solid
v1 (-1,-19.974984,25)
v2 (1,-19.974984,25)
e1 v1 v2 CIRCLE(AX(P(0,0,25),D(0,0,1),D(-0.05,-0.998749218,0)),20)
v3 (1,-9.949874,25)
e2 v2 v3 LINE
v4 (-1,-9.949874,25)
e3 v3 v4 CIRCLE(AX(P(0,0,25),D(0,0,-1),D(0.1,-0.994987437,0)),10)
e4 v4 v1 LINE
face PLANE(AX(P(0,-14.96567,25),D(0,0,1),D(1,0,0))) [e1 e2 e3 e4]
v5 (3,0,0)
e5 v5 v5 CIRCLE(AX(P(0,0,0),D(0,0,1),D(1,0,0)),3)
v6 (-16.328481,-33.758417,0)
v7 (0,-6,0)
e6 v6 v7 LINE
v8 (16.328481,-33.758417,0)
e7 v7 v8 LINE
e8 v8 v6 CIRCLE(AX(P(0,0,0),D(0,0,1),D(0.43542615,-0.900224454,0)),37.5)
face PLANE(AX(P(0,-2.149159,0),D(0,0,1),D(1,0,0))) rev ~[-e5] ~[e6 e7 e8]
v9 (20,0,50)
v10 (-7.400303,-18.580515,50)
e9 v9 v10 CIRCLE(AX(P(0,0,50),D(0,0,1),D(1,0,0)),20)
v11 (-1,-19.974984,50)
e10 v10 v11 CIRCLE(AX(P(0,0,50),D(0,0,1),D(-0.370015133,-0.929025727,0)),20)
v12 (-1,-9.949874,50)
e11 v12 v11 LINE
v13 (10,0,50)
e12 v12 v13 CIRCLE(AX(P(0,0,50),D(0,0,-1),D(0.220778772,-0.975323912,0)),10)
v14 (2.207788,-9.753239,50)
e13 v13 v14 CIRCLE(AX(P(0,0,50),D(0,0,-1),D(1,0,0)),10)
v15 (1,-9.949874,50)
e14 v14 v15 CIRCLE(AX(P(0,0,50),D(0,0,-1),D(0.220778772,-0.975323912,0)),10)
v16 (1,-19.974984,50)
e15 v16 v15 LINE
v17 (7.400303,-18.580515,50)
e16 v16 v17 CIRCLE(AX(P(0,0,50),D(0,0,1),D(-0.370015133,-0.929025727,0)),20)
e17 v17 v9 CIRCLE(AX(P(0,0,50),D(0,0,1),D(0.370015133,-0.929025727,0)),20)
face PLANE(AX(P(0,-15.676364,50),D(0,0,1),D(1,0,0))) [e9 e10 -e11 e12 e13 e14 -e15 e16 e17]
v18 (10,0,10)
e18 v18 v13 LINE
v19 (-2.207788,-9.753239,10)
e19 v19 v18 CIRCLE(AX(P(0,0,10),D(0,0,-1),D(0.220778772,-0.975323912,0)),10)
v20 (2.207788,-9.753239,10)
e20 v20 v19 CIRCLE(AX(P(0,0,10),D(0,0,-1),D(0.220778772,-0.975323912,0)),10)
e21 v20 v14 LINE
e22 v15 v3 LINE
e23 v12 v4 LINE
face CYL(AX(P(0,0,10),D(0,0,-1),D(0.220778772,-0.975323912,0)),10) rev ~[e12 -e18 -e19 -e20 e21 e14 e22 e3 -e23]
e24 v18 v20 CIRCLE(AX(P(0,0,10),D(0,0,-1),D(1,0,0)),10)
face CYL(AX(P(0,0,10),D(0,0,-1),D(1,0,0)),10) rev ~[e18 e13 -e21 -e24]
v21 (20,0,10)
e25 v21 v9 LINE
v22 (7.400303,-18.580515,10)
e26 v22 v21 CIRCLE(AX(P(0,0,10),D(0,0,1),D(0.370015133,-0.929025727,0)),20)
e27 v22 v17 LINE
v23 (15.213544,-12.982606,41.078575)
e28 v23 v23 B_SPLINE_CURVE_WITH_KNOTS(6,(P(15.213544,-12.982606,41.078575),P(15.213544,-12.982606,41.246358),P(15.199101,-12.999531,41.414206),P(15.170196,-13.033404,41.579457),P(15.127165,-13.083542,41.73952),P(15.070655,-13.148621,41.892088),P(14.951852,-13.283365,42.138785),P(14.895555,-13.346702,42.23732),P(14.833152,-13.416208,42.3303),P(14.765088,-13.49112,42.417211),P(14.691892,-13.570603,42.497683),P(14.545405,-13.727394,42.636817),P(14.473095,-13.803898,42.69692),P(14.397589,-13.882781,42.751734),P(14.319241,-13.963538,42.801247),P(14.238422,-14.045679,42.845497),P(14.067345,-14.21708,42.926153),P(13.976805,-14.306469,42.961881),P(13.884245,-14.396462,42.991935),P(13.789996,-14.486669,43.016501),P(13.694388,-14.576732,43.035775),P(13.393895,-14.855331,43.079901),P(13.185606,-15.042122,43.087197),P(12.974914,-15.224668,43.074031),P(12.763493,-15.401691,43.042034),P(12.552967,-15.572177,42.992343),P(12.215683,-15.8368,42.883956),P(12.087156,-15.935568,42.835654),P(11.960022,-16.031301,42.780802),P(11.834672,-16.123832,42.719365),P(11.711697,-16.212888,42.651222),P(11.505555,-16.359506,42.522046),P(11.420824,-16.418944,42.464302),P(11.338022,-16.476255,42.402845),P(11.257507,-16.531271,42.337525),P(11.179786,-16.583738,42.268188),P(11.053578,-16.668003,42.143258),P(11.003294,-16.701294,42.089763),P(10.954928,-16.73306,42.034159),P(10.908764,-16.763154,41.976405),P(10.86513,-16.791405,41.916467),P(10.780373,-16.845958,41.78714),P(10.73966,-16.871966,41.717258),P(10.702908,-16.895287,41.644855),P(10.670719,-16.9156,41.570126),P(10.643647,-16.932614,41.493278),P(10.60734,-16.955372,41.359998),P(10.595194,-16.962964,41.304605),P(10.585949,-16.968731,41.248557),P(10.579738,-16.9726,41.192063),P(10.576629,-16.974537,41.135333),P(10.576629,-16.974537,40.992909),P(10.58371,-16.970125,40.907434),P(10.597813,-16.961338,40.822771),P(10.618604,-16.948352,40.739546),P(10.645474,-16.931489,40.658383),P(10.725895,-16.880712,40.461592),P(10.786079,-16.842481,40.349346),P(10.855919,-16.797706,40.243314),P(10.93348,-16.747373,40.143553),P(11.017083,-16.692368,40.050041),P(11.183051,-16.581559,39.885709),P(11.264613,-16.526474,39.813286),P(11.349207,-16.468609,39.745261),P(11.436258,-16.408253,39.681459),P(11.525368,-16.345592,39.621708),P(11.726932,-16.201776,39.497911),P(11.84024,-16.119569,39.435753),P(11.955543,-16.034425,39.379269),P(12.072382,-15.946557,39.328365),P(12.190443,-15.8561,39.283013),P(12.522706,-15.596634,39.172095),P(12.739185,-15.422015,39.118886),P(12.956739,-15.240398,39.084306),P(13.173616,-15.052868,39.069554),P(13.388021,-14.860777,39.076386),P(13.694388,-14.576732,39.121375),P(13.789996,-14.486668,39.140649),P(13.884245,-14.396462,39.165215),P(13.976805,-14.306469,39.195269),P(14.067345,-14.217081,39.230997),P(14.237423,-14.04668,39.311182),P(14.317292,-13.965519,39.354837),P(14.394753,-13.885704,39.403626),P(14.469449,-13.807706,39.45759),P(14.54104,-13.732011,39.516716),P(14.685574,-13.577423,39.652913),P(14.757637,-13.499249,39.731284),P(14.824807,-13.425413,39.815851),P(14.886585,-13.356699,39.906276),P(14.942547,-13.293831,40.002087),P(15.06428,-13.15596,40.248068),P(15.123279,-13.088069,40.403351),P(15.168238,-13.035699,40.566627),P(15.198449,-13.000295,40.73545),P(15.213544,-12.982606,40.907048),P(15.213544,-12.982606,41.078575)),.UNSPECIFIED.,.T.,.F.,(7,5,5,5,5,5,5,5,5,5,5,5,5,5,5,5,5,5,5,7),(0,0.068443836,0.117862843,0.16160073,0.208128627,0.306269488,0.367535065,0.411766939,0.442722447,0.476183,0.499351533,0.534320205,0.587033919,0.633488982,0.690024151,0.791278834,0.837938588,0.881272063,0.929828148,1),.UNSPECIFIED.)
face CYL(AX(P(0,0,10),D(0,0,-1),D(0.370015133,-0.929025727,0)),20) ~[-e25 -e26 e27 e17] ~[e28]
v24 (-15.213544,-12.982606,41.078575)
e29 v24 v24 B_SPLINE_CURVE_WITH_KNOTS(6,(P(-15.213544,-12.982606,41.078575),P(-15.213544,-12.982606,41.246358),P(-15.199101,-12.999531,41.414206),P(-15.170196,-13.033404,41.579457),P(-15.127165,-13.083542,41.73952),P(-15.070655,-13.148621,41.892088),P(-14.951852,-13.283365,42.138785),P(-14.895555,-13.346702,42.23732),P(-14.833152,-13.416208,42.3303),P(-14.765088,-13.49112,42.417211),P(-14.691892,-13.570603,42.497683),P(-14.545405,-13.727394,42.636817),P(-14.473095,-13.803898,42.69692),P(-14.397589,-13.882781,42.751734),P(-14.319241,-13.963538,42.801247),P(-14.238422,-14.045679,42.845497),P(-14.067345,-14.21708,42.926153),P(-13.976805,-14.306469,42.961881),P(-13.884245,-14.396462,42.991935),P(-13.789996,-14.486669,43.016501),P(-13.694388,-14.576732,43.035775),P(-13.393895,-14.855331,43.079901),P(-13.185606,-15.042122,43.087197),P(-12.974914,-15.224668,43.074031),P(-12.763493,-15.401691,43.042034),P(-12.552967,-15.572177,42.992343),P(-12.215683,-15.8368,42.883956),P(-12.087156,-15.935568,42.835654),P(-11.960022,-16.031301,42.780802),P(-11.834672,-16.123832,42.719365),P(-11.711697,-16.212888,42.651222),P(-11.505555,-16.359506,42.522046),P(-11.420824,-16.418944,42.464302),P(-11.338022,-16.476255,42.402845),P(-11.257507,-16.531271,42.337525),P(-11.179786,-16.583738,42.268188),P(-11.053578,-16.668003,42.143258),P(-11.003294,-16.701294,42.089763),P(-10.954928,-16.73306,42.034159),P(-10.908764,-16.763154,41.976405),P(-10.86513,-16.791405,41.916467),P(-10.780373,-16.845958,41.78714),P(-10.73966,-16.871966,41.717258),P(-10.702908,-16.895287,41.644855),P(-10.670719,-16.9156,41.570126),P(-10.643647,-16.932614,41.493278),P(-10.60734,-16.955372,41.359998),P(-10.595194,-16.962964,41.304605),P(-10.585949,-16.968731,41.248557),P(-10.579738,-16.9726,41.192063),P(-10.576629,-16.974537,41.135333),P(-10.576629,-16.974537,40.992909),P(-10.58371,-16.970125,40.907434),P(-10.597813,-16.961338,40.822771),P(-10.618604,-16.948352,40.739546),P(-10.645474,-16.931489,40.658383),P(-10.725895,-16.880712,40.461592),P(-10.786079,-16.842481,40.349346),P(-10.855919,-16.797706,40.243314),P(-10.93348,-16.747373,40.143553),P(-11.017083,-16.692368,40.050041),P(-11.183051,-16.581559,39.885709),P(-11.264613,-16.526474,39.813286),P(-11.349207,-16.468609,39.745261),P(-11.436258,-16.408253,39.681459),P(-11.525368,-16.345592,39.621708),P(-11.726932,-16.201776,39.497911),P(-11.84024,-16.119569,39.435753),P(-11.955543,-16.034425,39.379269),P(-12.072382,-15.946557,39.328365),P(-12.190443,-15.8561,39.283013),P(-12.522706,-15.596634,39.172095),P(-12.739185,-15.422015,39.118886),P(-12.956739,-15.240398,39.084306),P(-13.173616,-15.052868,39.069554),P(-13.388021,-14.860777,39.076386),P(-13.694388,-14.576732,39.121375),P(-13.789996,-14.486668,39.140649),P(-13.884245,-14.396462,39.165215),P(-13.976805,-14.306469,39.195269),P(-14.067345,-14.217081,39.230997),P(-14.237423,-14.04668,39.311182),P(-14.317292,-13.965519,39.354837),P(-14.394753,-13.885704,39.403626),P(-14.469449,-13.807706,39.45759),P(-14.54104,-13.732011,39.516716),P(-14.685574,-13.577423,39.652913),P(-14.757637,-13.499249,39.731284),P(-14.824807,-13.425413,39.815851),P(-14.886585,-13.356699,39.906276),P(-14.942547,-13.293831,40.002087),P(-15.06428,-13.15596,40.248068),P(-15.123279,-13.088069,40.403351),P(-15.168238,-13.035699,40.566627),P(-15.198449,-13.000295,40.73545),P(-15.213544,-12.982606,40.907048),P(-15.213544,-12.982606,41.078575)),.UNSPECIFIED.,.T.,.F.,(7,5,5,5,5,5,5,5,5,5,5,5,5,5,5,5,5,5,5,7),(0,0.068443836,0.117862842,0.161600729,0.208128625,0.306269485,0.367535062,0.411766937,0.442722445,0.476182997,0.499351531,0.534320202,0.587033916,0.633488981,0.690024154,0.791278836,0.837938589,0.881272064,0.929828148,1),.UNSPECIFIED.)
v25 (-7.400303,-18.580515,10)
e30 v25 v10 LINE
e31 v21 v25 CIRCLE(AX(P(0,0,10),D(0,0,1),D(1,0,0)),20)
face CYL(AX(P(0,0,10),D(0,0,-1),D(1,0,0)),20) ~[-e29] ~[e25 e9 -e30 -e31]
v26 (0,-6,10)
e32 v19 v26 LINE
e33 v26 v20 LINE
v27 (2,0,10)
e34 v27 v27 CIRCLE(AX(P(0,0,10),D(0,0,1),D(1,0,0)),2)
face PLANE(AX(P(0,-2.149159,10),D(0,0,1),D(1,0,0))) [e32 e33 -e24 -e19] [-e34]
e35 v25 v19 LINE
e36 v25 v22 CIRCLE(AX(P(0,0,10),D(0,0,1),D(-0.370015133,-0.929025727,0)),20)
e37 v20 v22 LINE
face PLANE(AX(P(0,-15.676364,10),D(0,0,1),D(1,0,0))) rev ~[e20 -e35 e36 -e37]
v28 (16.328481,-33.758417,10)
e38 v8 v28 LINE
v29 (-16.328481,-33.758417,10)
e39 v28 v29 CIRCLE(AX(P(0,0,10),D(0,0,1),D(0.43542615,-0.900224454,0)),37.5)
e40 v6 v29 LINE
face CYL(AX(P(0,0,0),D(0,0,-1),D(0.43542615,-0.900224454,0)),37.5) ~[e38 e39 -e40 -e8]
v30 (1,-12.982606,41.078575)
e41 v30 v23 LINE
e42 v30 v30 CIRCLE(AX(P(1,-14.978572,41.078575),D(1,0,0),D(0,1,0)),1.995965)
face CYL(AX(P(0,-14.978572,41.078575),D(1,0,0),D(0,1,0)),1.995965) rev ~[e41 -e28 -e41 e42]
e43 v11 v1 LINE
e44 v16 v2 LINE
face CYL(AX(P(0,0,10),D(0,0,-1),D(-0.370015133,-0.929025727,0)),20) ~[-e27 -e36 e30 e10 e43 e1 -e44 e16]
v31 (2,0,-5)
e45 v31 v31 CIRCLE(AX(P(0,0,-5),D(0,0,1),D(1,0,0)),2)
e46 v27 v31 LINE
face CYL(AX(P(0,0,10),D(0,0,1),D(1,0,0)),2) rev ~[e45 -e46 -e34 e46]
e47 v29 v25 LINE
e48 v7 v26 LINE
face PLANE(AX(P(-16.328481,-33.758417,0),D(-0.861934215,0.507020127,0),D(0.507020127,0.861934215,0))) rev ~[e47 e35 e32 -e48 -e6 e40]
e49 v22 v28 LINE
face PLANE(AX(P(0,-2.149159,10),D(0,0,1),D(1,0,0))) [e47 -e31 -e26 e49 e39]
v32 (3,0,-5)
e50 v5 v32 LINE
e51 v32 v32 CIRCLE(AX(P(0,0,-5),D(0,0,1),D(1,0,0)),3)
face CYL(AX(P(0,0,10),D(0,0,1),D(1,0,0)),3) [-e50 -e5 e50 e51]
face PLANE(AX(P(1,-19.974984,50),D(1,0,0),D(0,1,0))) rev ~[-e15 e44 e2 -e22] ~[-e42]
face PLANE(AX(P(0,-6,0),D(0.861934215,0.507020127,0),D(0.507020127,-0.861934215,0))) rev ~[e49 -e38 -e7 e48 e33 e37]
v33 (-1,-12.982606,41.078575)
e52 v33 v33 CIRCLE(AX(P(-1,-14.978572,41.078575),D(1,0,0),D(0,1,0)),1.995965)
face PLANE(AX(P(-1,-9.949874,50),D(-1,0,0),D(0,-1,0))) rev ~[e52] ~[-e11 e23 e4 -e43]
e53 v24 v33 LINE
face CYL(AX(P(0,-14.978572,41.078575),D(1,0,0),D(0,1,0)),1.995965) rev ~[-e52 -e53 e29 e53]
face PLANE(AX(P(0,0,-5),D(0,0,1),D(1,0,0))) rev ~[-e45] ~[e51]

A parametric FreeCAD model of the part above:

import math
import FreeCAD as App
import Part
import Sketcher

V = App.Vector
Q = App.Units.Quantity

doc = App.newDocument("Part")
body = doc.addObject("PartDesign::Body", "Body")

# Sketch on XY plane
sketch1 = doc.addObject("Sketcher::SketchObject", "Sketch")
body.addObject(sketch1)
sketch1.AttachmentSupport = (doc.XY_Plane, [""])
sketch1.MapMode = "FlatFace"
sketch1.addGeometry([
    Part.LineSegment(V(0, -6, 0), V(16.328481, -33.758417, 0)),
    Part.ArcOfCircle(Part.Circle(V(0, 0, 0), V(0, 0, 1), 37.5), math.radians(-64.187586), math.radians(244.187586)),
    Part.LineSegment(V(-16.328481, -33.758417, 0), V(0, -6, 0)),
    Part.Circle(V(0, 0, 0), V(0, 0, 1), 3),
], False)
sketch1.addConstraint([
    Sketcher.Constraint("Coincident", 0, 2, 1, 1),
    Sketcher.Constraint("Coincident", 1, 2, 2, 1),
    Sketcher.Constraint("Coincident", 2, 2, 0, 1),
    Sketcher.Constraint("Coincident", 1, 3, -1, 1),
    Sketcher.Constraint("Coincident", 3, 3, -1, 1),
    Sketcher.Constraint("PointOnObject", 2, 2, -2),
    Sketcher.Constraint("Horizontal", 0, 2, 1, 2),
    Sketcher.Constraint("Diameter", 3, Q("6 mm")),
    Sketcher.Constraint("Radius", 1, Q("37.5 mm")),
    Sketcher.Constraint("DistanceY", 2, 2, -1, 1, Q("6 mm")),
    Sketcher.Constraint("DistanceX", -1, 1, 0, 2, Q("16.328481 mm")),
])
pad1 = doc.addObject("PartDesign::Pad", "Pad")
body.addObject(pad1)
pad1.Profile = sketch1
pad1.Length = 10

# Sketch on XY plane
sketch2 = doc.addObject("Sketcher::SketchObject", "Sketch001")
body.addObject(sketch2)
sketch2.AttachmentSupport = (doc.XY_Plane, [""])
sketch2.MapMode = "FlatFace"
sketch2.AttachmentOffset = App.Placement(V(0, 0, 10), App.Rotation())
sketch2.addGeometry([
    Part.ArcOfCircle(Part.Circle(V(0, 0, 0), V(0, 0, 1), 20), math.radians(-111.716551), math.radians(-68.283449)),  # 0
    Part.ArcOfCircle(Part.Circle(V(0, 0, 0), V(0, 0, 1), 20), math.radians(-68.283449), math.radians(0)),  # 1
    Part.ArcOfCircle(Part.Circle(V(0, 0, 0), V(0, 0, 1), 20), math.radians(0), math.radians(248.283449)),  # 2
    Part.ArcOfCircle(Part.Circle(V(0, 0, 0), V(0, 0, 1), 10), math.radians(0), math.radians(282.754778)),  # 3
    Part.ArcOfCircle(Part.Circle(V(0, 0, 0), V(0, 0, 1), 10), math.radians(-77.245222), math.radians(0)),  # 4
], False)
sketch2.addConstraint([
    Sketcher.Constraint("Tangent", 0, 2, 1, 1),
    Sketcher.Constraint("Tangent", 1, 2, 2, 1),
    Sketcher.Constraint("Tangent", 2, 2, 0, 1),
    Sketcher.Constraint("Tangent", 3, 1, 4, 2),
    Sketcher.Constraint("Coincident", 4, 1, 3, 2),
    Sketcher.Constraint("Coincident", 0, 3, -1, 1),
    Sketcher.Constraint("Coincident", 3, 3, -1, 1),
    Sketcher.Constraint("PointOnObject", 1, 2, -1),
    Sketcher.Constraint("PointOnObject", 3, 1, -1),
    Sketcher.Constraint("Horizontal", 0, 2, 2, 2),
    Sketcher.Constraint("Radius", 0, Q("20 mm")),
    Sketcher.Constraint("Radius", 3, Q("10 mm")),
    Sketcher.Constraint("DistanceY", 4, 1, -1, 1, Q("9.753239 mm")),
    Sketcher.Constraint("DistanceX", -1, 1, 0, 2, Q("7.400303 mm")),
])
pad2 = doc.addObject("PartDesign::Pad", "Pad001")
body.addObject(pad2)
pad2.Profile = sketch2
pad2.Length = 40

# Sketch on XY plane
sketch3 = doc.addObject("Sketcher::SketchObject", "Sketch002")
body.addObject(sketch3)
sketch3.AttachmentSupport = (doc.XY_Plane, [""])
sketch3.MapMode = "FlatFace"
sketch3.AttachmentOffset = App.Placement(V(0, 0, 50), App.Rotation())
sketch3.addGeometry([
    Part.ArcOfCircle(Part.Circle(V(0, 0, 0), V(0, 0, 1), 20), math.radians(-92.865984), math.radians(-87.134016)),
    Part.LineSegment(V(1, -19.974984, 0), V(1, -9.949874, 0)),
    Part.ArcOfCircle(Part.Circle(V(0, 0, 0), V(0, 0, 1), 10), math.radians(-95.73917), math.radians(-84.26083)),
    Part.LineSegment(V(-1, -9.949874, 0), V(-1, -19.974984, 0)),
], False)
sketch3.addConstraint([
    Sketcher.Constraint("Coincident", 0, 2, 1, 1),
    Sketcher.Constraint("Coincident", 1, 2, 2, 2),
    Sketcher.Constraint("Coincident", 2, 1, 3, 1),
    Sketcher.Constraint("Coincident", 3, 2, 0, 1),
    Sketcher.Constraint("Vertical", 1),
    Sketcher.Constraint("Vertical", 3),
    Sketcher.Constraint("Coincident", 0, 3, -1, 1),
    Sketcher.Constraint("Coincident", 2, 3, -1, 1),
    Sketcher.Constraint("Horizontal", 1, 2, 2, 1),
    Sketcher.Constraint("Radius", 0, Q("20 mm")),
    Sketcher.Constraint("Radius", 2, Q("10 mm")),
    Sketcher.Constraint("DistanceX", -1, 1, 0, 2, Q("1 mm")),
])
pocket1 = doc.addObject("PartDesign::Pocket", "Pocket")
body.addObject(pocket1)
pocket1.Profile = sketch3
pocket1.Length = 25

# Sketch on XY plane
sketch4 = doc.addObject("Sketcher::SketchObject", "Sketch003")
body.addObject(sketch4)
sketch4.AttachmentSupport = (doc.XY_Plane, [""])
sketch4.MapMode = "FlatFace"
sketch4.AttachmentOffset = App.Placement(V(0, 0, 10), App.Rotation())
sketch4.addGeometry([
    Part.Circle(V(0, 0, 0), V(0, 0, 1), 3),
    Part.Circle(V(0, 0, 0), V(0, 0, 1), 2),
], False)
sketch4.addConstraint([
    Sketcher.Constraint("Coincident", 0, 3, -1, 1),
    Sketcher.Constraint("Coincident", 1, 3, -1, 1),
    Sketcher.Constraint("Diameter", 0, Q("6 mm")),
    Sketcher.Constraint("Diameter", 1, Q("4 mm")),
])
pad3 = doc.addObject("PartDesign::Pad", "Pad002")
body.addObject(pad3)
pad3.Profile = sketch4
pad3.Length = 15
pad3.Reversed = True

# Sketch on YZ plane
sketch5 = doc.addObject("Sketcher::SketchObject", "Sketch004")
body.addObject(sketch5)
sketch5.AttachmentSupport = (doc.YZ_Plane, [""])
sketch5.MapMode = "FlatFace"
sketch5.addGeometry(Part.Circle(V(-14.978572, 41.078575, 0), V(0, 0, 1), 1.995965), False)
sketch5.addConstraint([
    Sketcher.Constraint("Diameter", 0, Q("3.991931 mm")),
    Sketcher.Constraint("DistanceX", 0, 3, -1, 1, Q("14.978572 mm")),
    Sketcher.Constraint("DistanceY", -1, 1, 0, 3, Q("41.078575 mm")),
])
pocket2 = doc.addObject("PartDesign::Pocket", "Pocket001")
body.addObject(pocket2)
pocket2.Profile = sketch5
pocket2.Length = 39
pocket2.Midplane = True

doc.recompute()
